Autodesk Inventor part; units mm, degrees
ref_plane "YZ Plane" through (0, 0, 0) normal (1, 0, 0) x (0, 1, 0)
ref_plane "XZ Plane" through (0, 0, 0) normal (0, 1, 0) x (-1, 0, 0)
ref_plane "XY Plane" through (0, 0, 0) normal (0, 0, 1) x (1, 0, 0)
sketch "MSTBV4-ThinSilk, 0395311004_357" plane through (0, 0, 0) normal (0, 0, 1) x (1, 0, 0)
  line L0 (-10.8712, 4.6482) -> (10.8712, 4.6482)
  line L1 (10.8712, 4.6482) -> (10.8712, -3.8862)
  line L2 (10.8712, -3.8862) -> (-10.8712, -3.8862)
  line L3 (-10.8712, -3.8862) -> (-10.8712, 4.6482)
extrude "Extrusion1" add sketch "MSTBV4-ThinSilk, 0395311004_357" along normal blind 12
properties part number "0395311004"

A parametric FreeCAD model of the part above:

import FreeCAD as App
import Part
import Sketcher
Q = App.Units.Quantity


def add_polygon(sketch, points):
    """Adds a closed chain of lines whose ends are joined by coincident constraints."""
    first, n = sketch.GeometryCount, len(points)
    for a, b in zip(points, points[1:] + points[:1]):
        sketch.addGeometry(Part.LineSegment(App.Vector(*a, 0), App.Vector(*b, 0)), False)
    for i in range(n):
        sketch.addConstraint(Sketcher.Constraint("Coincident", first + i, 2, first + (i + 1) % n, 1))

doc = App.newDocument("Part")
body = doc.addObject("PartDesign::Body", "Body")

sketch1 = body.newObject("Sketcher::SketchObject", "Sketch")
sketch1.AttachmentSupport = (doc.getObject("XY_Plane"), [""])
sketch1.MapMode = "FlatFace"
add_polygon(sketch1, [(11, 5), (-11, 5), (-11, -4), (11, -4)])
sketch1.addConstraint([
    Sketcher.Constraint("Horizontal", 0),
    Sketcher.Constraint("Vertical", 1),
    Sketcher.Constraint("Horizontal", 2),
    Sketcher.Constraint("Vertical", 3),
    Sketcher.Constraint("DistanceX", 0, 2, 0, 1, Q("0.856 in")),
    Sketcher.Constraint("DistanceY", 1, 2, 1, 1, Q("0.336 in")),
    Sketcher.Constraint("DistanceX", 0, 2, -1, 1, Q("0.428 in")),
    Sketcher.Constraint("DistanceY", -1, 1, 0, 2, Q("0.183 in")),
])
pad1 = body.newObject("PartDesign::Pad", "Pad")
pad1.Profile = sketch1
pad1.Length = 12

doc.recompute()
